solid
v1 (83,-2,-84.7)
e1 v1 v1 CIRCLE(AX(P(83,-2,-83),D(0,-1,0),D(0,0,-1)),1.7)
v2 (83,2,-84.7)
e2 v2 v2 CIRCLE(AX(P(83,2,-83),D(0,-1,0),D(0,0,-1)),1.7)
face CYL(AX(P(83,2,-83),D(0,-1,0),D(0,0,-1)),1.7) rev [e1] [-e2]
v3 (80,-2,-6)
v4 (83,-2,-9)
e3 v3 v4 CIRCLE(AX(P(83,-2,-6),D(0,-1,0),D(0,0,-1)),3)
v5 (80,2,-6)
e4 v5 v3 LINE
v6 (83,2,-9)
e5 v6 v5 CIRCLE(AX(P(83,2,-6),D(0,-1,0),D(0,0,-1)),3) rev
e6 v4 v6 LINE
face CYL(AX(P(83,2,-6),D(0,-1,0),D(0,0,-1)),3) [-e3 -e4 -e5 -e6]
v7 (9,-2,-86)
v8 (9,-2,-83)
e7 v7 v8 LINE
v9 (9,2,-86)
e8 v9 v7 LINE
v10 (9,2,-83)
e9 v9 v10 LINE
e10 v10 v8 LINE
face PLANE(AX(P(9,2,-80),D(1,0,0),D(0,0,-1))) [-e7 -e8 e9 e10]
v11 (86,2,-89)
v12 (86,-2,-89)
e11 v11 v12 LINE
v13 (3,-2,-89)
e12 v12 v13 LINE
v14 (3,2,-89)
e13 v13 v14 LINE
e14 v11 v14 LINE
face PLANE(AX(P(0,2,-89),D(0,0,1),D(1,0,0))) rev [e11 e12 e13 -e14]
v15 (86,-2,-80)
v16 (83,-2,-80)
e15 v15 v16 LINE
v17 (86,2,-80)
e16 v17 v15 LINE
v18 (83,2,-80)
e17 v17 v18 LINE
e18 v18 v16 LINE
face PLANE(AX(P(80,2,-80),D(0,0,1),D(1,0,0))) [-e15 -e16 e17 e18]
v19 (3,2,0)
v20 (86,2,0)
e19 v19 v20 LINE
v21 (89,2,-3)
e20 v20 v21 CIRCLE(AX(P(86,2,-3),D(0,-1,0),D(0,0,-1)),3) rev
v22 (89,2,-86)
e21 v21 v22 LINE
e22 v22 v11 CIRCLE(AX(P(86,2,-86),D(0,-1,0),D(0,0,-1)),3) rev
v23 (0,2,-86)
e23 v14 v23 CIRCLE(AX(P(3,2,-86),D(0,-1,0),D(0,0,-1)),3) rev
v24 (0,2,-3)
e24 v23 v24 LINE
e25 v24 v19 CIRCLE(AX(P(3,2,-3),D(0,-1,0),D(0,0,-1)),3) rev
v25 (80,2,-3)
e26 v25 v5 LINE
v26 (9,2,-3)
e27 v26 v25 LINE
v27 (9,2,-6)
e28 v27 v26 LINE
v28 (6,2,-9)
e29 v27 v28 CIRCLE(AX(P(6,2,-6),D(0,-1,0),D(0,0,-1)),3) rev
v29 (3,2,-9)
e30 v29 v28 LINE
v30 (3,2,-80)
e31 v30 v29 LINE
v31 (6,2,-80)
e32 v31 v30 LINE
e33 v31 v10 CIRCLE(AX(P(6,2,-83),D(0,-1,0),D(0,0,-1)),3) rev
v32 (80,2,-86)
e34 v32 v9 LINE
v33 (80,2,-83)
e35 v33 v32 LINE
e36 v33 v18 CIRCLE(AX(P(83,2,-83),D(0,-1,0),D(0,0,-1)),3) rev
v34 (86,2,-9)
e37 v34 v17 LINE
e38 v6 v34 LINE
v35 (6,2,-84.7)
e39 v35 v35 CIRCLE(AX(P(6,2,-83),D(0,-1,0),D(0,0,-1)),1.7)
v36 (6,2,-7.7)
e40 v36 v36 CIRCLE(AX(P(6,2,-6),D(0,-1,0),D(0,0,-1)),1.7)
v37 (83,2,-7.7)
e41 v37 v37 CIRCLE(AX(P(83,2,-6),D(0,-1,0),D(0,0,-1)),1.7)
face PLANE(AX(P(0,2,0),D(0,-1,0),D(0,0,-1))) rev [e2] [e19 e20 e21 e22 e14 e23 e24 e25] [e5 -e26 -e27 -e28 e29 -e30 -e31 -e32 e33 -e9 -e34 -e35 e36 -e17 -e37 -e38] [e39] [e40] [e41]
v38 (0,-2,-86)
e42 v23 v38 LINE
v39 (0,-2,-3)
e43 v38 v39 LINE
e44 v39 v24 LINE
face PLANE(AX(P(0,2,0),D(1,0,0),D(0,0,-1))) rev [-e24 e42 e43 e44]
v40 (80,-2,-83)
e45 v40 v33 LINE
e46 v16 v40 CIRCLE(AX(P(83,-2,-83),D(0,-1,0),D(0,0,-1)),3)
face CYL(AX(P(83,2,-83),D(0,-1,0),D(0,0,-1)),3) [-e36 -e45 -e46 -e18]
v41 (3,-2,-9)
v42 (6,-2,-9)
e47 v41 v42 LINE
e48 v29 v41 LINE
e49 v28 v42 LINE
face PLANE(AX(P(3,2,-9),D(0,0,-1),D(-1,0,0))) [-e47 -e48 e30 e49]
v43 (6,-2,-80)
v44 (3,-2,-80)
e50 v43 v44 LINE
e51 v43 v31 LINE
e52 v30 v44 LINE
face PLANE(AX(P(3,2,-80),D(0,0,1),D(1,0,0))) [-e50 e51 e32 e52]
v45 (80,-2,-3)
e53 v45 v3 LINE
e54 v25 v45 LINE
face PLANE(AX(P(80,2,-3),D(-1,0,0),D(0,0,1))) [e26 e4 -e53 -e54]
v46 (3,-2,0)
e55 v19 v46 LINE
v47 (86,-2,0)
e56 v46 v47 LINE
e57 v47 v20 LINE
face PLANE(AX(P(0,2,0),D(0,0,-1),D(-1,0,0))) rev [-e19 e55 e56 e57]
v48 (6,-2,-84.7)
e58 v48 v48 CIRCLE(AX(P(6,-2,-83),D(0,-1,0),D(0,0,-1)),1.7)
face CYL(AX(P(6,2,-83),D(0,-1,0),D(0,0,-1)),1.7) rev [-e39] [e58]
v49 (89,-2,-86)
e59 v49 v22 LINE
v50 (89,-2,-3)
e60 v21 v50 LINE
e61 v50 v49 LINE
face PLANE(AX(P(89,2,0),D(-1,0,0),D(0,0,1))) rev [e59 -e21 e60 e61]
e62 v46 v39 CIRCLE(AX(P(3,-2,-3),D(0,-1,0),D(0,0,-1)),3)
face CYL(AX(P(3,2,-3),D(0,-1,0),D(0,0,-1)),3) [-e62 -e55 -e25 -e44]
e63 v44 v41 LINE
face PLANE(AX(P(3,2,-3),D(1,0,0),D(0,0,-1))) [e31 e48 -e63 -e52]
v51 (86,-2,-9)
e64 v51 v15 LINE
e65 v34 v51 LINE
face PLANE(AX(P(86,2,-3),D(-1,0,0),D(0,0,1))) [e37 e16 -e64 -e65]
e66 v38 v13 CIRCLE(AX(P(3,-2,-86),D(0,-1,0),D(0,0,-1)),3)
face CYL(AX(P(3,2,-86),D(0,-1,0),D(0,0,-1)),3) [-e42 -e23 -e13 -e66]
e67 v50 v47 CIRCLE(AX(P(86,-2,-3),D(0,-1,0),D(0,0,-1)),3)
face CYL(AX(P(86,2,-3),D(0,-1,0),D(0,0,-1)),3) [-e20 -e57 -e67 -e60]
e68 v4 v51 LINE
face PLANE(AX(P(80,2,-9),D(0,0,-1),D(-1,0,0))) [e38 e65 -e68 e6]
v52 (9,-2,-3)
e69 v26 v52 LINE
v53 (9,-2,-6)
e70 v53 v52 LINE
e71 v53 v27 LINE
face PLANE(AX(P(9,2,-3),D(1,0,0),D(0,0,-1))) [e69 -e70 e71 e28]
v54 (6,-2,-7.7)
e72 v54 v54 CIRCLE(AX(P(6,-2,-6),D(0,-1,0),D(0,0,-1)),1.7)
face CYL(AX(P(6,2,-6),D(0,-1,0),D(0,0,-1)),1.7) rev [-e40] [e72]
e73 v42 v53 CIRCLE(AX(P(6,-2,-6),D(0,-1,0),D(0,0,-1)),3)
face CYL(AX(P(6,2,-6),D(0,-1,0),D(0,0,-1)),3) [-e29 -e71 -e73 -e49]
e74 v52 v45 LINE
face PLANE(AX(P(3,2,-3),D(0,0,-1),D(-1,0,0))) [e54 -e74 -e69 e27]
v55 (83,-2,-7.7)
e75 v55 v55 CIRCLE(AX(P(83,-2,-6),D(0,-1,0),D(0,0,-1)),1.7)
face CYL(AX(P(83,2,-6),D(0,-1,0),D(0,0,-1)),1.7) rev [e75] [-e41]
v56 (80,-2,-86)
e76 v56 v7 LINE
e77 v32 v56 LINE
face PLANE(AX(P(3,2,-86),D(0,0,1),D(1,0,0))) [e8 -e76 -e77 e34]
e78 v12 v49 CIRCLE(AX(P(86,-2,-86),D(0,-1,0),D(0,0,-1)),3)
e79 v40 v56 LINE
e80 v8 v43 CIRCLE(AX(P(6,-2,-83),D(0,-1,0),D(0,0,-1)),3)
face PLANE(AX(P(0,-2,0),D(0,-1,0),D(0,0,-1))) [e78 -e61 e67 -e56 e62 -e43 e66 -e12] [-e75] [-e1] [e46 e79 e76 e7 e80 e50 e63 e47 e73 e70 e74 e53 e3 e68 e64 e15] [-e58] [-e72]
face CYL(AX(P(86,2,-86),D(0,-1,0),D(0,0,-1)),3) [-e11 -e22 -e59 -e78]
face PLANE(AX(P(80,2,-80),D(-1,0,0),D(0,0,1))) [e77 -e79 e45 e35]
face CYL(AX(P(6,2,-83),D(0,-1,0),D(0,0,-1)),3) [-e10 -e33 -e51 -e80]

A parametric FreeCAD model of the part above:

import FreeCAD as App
import Part
import Sketcher
Q = App.Units.Quantity


def edges_at(feature, points):
    """Names of the edges that pass closest to the given points."""
    edges = feature.Shape.Edges
    near = lambda p: min(range(len(edges)), key=lambda i: edges[i].distToShape(Part.Vertex(*p))[0])
    return sorted({f"Edge{near(p) + 1}" for p in points})

doc = App.newDocument("Part")
body = doc.addObject("PartDesign::Body", "Body")

# Sketch on XZ plane
sketch1 = doc.addObject("Sketcher::SketchObject", "Sketch")
body.addObject(sketch1)
sketch1.AttachmentSupport = (doc.XZ_Plane, [""])
sketch1.MapMode = "FlatFace"
sketch1.addGeometry(Part.LineSegment(App.Vector(0, -89, 0), App.Vector(0, 0, 0)), False)
sketch1.addGeometry(Part.LineSegment(App.Vector(0, 0, 0), App.Vector(89, 0, 0)), False)
sketch1.addGeometry(Part.LineSegment(App.Vector(89, 0, 0), App.Vector(89, -89, 0)), False)
sketch1.addGeometry(Part.LineSegment(App.Vector(89, -89, 0), App.Vector(0, -89, 0)), False)
sketch1.addGeometry(Part.LineSegment(App.Vector(86, -3, 0), App.Vector(3, -3, 0)), False)
sketch1.addGeometry(Part.LineSegment(App.Vector(3, -3, 0), App.Vector(3, -86, 0)), False)
sketch1.addGeometry(Part.LineSegment(App.Vector(3, -86, 0), App.Vector(86, -86, 0)), False)
sketch1.addGeometry(Part.LineSegment(App.Vector(86, -86, 0), App.Vector(86, -3, 0)), False)
sketch1.addConstraint(Sketcher.Constraint("Coincident", 0, 2, 1, 1))
sketch1.addConstraint(Sketcher.Constraint("Coincident", 1, 2, 2, 1))
sketch1.addConstraint(Sketcher.Constraint("Coincident", 2, 2, 3, 1))
sketch1.addConstraint(Sketcher.Constraint("Coincident", 3, 2, 0, 1))
sketch1.addConstraint(Sketcher.Constraint("Coincident", 4, 2, 5, 1))
sketch1.addConstraint(Sketcher.Constraint("Coincident", 5, 2, 6, 1))
sketch1.addConstraint(Sketcher.Constraint("Coincident", 6, 2, 7, 1))
sketch1.addConstraint(Sketcher.Constraint("Coincident", 7, 2, 4, 1))
sketch1.addConstraint(Sketcher.Constraint("Vertical", 0))
sketch1.addConstraint(Sketcher.Constraint("Horizontal", 1))
sketch1.addConstraint(Sketcher.Constraint("Vertical", 2))
sketch1.addConstraint(Sketcher.Constraint("Horizontal", 3))
sketch1.addConstraint(Sketcher.Constraint("Horizontal", 4))
sketch1.addConstraint(Sketcher.Constraint("Vertical", 5))
sketch1.addConstraint(Sketcher.Constraint("Horizontal", 6))
sketch1.addConstraint(Sketcher.Constraint("Vertical", 7))
sketch1.addConstraint(Sketcher.Constraint("Coincident", 0, 2, -1, 1))
sketch1.addConstraint(Sketcher.Constraint("Equal", 3, 0))
sketch1.addConstraint(Sketcher.Constraint("Equal", 6, 5))
sketch1.addConstraint(Sketcher.Constraint("DistanceX", 1, 1, 1, 2, Q("89 mm")))
sketch1.addConstraint(Sketcher.Constraint("DistanceX", 4, 2, 4, 1, Q("83 mm")))
sketch1.addConstraint(Sketcher.Constraint("DistanceX", -1, 1, 4, 2, Q("3 mm")))
sketch1.addConstraint(Sketcher.Constraint("DistanceY", 4, 2, -1, 1, Q("3 mm")))
pad1 = doc.addObject("PartDesign::Pad", "Pad")
body.addObject(pad1)
pad1.Profile = sketch1
pad1.Length = 4
pad1.Midplane = True

# Sketch on XZ plane
sketch2 = doc.addObject("Sketcher::SketchObject", "Sketch001")
body.addObject(sketch2)
sketch2.AttachmentSupport = (doc.XZ_Plane, [""])
sketch2.MapMode = "FlatFace"
sketch2.AttachmentOffset = App.Placement(App.Vector(0, 0, 2), App.Rotation())
sketch2.addGeometry(Part.LineSegment(App.Vector(80, -3, 0), App.Vector(80, -9, 0)), False)
sketch2.addGeometry(Part.LineSegment(App.Vector(80, -9, 0), App.Vector(86, -9, 0)), False)
sketch2.addGeometry(Part.LineSegment(App.Vector(86, -9, 0), App.Vector(86, -3, 0)), False)
sketch2.addGeometry(Part.LineSegment(App.Vector(86, -3, 0), App.Vector(80, -3, 0)), False)
sketch2.addGeometry(Part.Circle(App.Vector(83, -6, 0), App.Vector(0, 0, 1), 1.7), False)
sketch2.addGeometry(Part.LineSegment(App.Vector(3, -3, 0), App.Vector(3, -9, 0)), False)
sketch2.addGeometry(Part.LineSegment(App.Vector(3, -9, 0), App.Vector(9, -9, 0)), False)
sketch2.addGeometry(Part.LineSegment(App.Vector(9, -9, 0), App.Vector(9, -3, 0)), False)
sketch2.addGeometry(Part.LineSegment(App.Vector(9, -3, 0), App.Vector(3, -3, 0)), False)
sketch2.addGeometry(Part.Circle(App.Vector(6, -6, 0), App.Vector(0, 0, 1), 1.7), False)
sketch2.addGeometry(Part.LineSegment(App.Vector(80, -80, 0), App.Vector(80, -86, 0)), False)
sketch2.addGeometry(Part.LineSegment(App.Vector(80, -86, 0), App.Vector(86, -86, 0)), False)
sketch2.addGeometry(Part.LineSegment(App.Vector(86, -86, 0), App.Vector(86, -80, 0)), False)
sketch2.addGeometry(Part.LineSegment(App.Vector(86, -80, 0), App.Vector(80, -80, 0)), False)
sketch2.addGeometry(Part.Circle(App.Vector(83, -83, 0), App.Vector(0, 0, 1), 1.7), False)
sketch2.addGeometry(Part.LineSegment(App.Vector(3, -80, 0), App.Vector(3, -86, 0)), False)
sketch2.addGeometry(Part.LineSegment(App.Vector(3, -86, 0), App.Vector(9, -86, 0)), False)
sketch2.addGeometry(Part.LineSegment(App.Vector(9, -86, 0), App.Vector(9, -80, 0)), False)
sketch2.addGeometry(Part.LineSegment(App.Vector(9, -80, 0), App.Vector(3, -80, 0)), False)
sketch2.addGeometry(Part.Circle(App.Vector(6, -83, 0), App.Vector(0, 0, 1), 1.7), False)
sketch2.addConstraint(Sketcher.Constraint("Coincident", 0, 2, 1, 1))
sketch2.addConstraint(Sketcher.Constraint("Coincident", 1, 2, 2, 1))
sketch2.addConstraint(Sketcher.Constraint("Coincident", 2, 2, 3, 1))
sketch2.addConstraint(Sketcher.Constraint("Coincident", 3, 2, 0, 1))
sketch2.addConstraint(Sketcher.Constraint("Coincident", 5, 2, 6, 1))
sketch2.addConstraint(Sketcher.Constraint("Coincident", 6, 2, 7, 1))
sketch2.addConstraint(Sketcher.Constraint("Coincident", 7, 2, 8, 1))
sketch2.addConstraint(Sketcher.Constraint("Coincident", 8, 2, 5, 1))
sketch2.addConstraint(Sketcher.Constraint("Coincident", 10, 2, 11, 1))
sketch2.addConstraint(Sketcher.Constraint("Coincident", 11, 2, 12, 1))
sketch2.addConstraint(Sketcher.Constraint("Coincident", 12, 2, 13, 1))
sketch2.addConstraint(Sketcher.Constraint("Coincident", 13, 2, 10, 1))
sketch2.addConstraint(Sketcher.Constraint("Coincident", 15, 2, 16, 1))
sketch2.addConstraint(Sketcher.Constraint("Coincident", 16, 2, 17, 1))
sketch2.addConstraint(Sketcher.Constraint("Coincident", 17, 2, 18, 1))
sketch2.addConstraint(Sketcher.Constraint("Coincident", 18, 2, 15, 1))
sketch2.addConstraint(Sketcher.Constraint("Vertical", 0))
sketch2.addConstraint(Sketcher.Constraint("Horizontal", 1))
sketch2.addConstraint(Sketcher.Constraint("Vertical", 2))
sketch2.addConstraint(Sketcher.Constraint("Horizontal", 3))
sketch2.addConstraint(Sketcher.Constraint("Vertical", 5))
sketch2.addConstraint(Sketcher.Constraint("Horizontal", 6))
sketch2.addConstraint(Sketcher.Constraint("Vertical", 7))
sketch2.addConstraint(Sketcher.Constraint("Horizontal", 8))
sketch2.addConstraint(Sketcher.Constraint("Vertical", 10))
sketch2.addConstraint(Sketcher.Constraint("Horizontal", 11))
sketch2.addConstraint(Sketcher.Constraint("Vertical", 12))
sketch2.addConstraint(Sketcher.Constraint("Horizontal", 13))
sketch2.addConstraint(Sketcher.Constraint("Vertical", 15))
sketch2.addConstraint(Sketcher.Constraint("Horizontal", 16))
sketch2.addConstraint(Sketcher.Constraint("Vertical", 17))
sketch2.addConstraint(Sketcher.Constraint("Horizontal", 18))
sketch2.addConstraint(Sketcher.Constraint("Equal", 4, 9))
sketch2.addConstraint(Sketcher.Constraint("Equal", 9, 14))
sketch2.addConstraint(Sketcher.Constraint("Equal", 14, 19))
sketch2.addConstraint(Sketcher.Constraint("Horizontal", 4, 3, 9, 3))
sketch2.addConstraint(Sketcher.Constraint("Horizontal", 14, 3, 19, 3))
sketch2.addConstraint(Sketcher.Constraint("Horizontal", 1, 2, 5, 2))
sketch2.addConstraint(Sketcher.Constraint("Horizontal", 3, 2, 7, 2))
sketch2.addConstraint(Sketcher.Constraint("Horizontal", 11, 2, 15, 2))
sketch2.addConstraint(Sketcher.Constraint("Horizontal", 13, 2, 17, 2))
sketch2.addConstraint(Sketcher.Constraint("Vertical", 4, 3, 14, 3))
sketch2.addConstraint(Sketcher.Constraint("Vertical", 9, 3, 19, 3))
sketch2.addConstraint(Sketcher.Constraint("Vertical", 3, 2, 10, 2))
sketch2.addConstraint(Sketcher.Constraint("Vertical", 2, 2, 11, 2))
sketch2.addConstraint(Sketcher.Constraint("Vertical", 8, 2, 15, 2))
sketch2.addConstraint(Sketcher.Constraint("Vertical", 7, 2, 16, 2))
sketch2.addConstraint(Sketcher.Constraint("Equal", 3, 6))
sketch2.addConstraint(Sketcher.Constraint("Equal", 18, 0))
sketch2.addConstraint(Sketcher.Constraint("Equal", 7, 10))
sketch2.addConstraint(Sketcher.Constraint("Diameter", 4, Q("3.4 mm")))
sketch2.addConstraint(Sketcher.Constraint("DistanceX", 1, 1, 1, 2, Q("6 mm")))
sketch2.addConstraint(Sketcher.Constraint("DistanceX", -1, 1, 4, 3, Q("83 mm")))
sketch2.addConstraint(Sketcher.Constraint("DistanceY", 4, 3, -1, 1, Q("6 mm")))
sketch2.addConstraint(Sketcher.Constraint("DistanceX", -1, 1, 9, 3, Q("6 mm")))
sketch2.addConstraint(Sketcher.Constraint("DistanceY", 14, 3, -1, 1, Q("83 mm")))
sketch2.addConstraint(Sketcher.Constraint("DistanceX", -1, 1, 0, 2, Q("80 mm")))
sketch2.addConstraint(Sketcher.Constraint("DistanceY", 0, 2, -1, 1, Q("9 mm")))
sketch2.addConstraint(Sketcher.Constraint("DistanceX", -1, 1, 5, 2, Q("3 mm")))
sketch2.addConstraint(Sketcher.Constraint("DistanceY", 10, 2, -1, 1, Q("86 mm")))
pad2 = doc.addObject("PartDesign::Pad", "Pad001")
body.addObject(pad2)
pad2.Profile = sketch2
pad2.Length = 4
pad2.Reversed = True
doc.recompute()

fillet = doc.addObject("PartDesign::Fillet", "Fillet")
body.addObject(fillet)
fillet.Base = (pad2, edges_at(pad2, [
    (9, 0, -9),
    (80, 0, -9),
    (9, 0, -80),
    (80, 0, -80),
]))
fillet.Radius = 3
doc.recompute()

fillet2 = doc.addObject("PartDesign::Fillet", "Fillet001")
body.addObject(fillet2)
fillet2.Base = (fillet, edges_at(fillet, [
    (0, 0, -89),
    (89, 0, -89),
    (89, 0, 0),
    (0, 0, 0),
]))
fillet2.Radius = 3

doc.recompute()
